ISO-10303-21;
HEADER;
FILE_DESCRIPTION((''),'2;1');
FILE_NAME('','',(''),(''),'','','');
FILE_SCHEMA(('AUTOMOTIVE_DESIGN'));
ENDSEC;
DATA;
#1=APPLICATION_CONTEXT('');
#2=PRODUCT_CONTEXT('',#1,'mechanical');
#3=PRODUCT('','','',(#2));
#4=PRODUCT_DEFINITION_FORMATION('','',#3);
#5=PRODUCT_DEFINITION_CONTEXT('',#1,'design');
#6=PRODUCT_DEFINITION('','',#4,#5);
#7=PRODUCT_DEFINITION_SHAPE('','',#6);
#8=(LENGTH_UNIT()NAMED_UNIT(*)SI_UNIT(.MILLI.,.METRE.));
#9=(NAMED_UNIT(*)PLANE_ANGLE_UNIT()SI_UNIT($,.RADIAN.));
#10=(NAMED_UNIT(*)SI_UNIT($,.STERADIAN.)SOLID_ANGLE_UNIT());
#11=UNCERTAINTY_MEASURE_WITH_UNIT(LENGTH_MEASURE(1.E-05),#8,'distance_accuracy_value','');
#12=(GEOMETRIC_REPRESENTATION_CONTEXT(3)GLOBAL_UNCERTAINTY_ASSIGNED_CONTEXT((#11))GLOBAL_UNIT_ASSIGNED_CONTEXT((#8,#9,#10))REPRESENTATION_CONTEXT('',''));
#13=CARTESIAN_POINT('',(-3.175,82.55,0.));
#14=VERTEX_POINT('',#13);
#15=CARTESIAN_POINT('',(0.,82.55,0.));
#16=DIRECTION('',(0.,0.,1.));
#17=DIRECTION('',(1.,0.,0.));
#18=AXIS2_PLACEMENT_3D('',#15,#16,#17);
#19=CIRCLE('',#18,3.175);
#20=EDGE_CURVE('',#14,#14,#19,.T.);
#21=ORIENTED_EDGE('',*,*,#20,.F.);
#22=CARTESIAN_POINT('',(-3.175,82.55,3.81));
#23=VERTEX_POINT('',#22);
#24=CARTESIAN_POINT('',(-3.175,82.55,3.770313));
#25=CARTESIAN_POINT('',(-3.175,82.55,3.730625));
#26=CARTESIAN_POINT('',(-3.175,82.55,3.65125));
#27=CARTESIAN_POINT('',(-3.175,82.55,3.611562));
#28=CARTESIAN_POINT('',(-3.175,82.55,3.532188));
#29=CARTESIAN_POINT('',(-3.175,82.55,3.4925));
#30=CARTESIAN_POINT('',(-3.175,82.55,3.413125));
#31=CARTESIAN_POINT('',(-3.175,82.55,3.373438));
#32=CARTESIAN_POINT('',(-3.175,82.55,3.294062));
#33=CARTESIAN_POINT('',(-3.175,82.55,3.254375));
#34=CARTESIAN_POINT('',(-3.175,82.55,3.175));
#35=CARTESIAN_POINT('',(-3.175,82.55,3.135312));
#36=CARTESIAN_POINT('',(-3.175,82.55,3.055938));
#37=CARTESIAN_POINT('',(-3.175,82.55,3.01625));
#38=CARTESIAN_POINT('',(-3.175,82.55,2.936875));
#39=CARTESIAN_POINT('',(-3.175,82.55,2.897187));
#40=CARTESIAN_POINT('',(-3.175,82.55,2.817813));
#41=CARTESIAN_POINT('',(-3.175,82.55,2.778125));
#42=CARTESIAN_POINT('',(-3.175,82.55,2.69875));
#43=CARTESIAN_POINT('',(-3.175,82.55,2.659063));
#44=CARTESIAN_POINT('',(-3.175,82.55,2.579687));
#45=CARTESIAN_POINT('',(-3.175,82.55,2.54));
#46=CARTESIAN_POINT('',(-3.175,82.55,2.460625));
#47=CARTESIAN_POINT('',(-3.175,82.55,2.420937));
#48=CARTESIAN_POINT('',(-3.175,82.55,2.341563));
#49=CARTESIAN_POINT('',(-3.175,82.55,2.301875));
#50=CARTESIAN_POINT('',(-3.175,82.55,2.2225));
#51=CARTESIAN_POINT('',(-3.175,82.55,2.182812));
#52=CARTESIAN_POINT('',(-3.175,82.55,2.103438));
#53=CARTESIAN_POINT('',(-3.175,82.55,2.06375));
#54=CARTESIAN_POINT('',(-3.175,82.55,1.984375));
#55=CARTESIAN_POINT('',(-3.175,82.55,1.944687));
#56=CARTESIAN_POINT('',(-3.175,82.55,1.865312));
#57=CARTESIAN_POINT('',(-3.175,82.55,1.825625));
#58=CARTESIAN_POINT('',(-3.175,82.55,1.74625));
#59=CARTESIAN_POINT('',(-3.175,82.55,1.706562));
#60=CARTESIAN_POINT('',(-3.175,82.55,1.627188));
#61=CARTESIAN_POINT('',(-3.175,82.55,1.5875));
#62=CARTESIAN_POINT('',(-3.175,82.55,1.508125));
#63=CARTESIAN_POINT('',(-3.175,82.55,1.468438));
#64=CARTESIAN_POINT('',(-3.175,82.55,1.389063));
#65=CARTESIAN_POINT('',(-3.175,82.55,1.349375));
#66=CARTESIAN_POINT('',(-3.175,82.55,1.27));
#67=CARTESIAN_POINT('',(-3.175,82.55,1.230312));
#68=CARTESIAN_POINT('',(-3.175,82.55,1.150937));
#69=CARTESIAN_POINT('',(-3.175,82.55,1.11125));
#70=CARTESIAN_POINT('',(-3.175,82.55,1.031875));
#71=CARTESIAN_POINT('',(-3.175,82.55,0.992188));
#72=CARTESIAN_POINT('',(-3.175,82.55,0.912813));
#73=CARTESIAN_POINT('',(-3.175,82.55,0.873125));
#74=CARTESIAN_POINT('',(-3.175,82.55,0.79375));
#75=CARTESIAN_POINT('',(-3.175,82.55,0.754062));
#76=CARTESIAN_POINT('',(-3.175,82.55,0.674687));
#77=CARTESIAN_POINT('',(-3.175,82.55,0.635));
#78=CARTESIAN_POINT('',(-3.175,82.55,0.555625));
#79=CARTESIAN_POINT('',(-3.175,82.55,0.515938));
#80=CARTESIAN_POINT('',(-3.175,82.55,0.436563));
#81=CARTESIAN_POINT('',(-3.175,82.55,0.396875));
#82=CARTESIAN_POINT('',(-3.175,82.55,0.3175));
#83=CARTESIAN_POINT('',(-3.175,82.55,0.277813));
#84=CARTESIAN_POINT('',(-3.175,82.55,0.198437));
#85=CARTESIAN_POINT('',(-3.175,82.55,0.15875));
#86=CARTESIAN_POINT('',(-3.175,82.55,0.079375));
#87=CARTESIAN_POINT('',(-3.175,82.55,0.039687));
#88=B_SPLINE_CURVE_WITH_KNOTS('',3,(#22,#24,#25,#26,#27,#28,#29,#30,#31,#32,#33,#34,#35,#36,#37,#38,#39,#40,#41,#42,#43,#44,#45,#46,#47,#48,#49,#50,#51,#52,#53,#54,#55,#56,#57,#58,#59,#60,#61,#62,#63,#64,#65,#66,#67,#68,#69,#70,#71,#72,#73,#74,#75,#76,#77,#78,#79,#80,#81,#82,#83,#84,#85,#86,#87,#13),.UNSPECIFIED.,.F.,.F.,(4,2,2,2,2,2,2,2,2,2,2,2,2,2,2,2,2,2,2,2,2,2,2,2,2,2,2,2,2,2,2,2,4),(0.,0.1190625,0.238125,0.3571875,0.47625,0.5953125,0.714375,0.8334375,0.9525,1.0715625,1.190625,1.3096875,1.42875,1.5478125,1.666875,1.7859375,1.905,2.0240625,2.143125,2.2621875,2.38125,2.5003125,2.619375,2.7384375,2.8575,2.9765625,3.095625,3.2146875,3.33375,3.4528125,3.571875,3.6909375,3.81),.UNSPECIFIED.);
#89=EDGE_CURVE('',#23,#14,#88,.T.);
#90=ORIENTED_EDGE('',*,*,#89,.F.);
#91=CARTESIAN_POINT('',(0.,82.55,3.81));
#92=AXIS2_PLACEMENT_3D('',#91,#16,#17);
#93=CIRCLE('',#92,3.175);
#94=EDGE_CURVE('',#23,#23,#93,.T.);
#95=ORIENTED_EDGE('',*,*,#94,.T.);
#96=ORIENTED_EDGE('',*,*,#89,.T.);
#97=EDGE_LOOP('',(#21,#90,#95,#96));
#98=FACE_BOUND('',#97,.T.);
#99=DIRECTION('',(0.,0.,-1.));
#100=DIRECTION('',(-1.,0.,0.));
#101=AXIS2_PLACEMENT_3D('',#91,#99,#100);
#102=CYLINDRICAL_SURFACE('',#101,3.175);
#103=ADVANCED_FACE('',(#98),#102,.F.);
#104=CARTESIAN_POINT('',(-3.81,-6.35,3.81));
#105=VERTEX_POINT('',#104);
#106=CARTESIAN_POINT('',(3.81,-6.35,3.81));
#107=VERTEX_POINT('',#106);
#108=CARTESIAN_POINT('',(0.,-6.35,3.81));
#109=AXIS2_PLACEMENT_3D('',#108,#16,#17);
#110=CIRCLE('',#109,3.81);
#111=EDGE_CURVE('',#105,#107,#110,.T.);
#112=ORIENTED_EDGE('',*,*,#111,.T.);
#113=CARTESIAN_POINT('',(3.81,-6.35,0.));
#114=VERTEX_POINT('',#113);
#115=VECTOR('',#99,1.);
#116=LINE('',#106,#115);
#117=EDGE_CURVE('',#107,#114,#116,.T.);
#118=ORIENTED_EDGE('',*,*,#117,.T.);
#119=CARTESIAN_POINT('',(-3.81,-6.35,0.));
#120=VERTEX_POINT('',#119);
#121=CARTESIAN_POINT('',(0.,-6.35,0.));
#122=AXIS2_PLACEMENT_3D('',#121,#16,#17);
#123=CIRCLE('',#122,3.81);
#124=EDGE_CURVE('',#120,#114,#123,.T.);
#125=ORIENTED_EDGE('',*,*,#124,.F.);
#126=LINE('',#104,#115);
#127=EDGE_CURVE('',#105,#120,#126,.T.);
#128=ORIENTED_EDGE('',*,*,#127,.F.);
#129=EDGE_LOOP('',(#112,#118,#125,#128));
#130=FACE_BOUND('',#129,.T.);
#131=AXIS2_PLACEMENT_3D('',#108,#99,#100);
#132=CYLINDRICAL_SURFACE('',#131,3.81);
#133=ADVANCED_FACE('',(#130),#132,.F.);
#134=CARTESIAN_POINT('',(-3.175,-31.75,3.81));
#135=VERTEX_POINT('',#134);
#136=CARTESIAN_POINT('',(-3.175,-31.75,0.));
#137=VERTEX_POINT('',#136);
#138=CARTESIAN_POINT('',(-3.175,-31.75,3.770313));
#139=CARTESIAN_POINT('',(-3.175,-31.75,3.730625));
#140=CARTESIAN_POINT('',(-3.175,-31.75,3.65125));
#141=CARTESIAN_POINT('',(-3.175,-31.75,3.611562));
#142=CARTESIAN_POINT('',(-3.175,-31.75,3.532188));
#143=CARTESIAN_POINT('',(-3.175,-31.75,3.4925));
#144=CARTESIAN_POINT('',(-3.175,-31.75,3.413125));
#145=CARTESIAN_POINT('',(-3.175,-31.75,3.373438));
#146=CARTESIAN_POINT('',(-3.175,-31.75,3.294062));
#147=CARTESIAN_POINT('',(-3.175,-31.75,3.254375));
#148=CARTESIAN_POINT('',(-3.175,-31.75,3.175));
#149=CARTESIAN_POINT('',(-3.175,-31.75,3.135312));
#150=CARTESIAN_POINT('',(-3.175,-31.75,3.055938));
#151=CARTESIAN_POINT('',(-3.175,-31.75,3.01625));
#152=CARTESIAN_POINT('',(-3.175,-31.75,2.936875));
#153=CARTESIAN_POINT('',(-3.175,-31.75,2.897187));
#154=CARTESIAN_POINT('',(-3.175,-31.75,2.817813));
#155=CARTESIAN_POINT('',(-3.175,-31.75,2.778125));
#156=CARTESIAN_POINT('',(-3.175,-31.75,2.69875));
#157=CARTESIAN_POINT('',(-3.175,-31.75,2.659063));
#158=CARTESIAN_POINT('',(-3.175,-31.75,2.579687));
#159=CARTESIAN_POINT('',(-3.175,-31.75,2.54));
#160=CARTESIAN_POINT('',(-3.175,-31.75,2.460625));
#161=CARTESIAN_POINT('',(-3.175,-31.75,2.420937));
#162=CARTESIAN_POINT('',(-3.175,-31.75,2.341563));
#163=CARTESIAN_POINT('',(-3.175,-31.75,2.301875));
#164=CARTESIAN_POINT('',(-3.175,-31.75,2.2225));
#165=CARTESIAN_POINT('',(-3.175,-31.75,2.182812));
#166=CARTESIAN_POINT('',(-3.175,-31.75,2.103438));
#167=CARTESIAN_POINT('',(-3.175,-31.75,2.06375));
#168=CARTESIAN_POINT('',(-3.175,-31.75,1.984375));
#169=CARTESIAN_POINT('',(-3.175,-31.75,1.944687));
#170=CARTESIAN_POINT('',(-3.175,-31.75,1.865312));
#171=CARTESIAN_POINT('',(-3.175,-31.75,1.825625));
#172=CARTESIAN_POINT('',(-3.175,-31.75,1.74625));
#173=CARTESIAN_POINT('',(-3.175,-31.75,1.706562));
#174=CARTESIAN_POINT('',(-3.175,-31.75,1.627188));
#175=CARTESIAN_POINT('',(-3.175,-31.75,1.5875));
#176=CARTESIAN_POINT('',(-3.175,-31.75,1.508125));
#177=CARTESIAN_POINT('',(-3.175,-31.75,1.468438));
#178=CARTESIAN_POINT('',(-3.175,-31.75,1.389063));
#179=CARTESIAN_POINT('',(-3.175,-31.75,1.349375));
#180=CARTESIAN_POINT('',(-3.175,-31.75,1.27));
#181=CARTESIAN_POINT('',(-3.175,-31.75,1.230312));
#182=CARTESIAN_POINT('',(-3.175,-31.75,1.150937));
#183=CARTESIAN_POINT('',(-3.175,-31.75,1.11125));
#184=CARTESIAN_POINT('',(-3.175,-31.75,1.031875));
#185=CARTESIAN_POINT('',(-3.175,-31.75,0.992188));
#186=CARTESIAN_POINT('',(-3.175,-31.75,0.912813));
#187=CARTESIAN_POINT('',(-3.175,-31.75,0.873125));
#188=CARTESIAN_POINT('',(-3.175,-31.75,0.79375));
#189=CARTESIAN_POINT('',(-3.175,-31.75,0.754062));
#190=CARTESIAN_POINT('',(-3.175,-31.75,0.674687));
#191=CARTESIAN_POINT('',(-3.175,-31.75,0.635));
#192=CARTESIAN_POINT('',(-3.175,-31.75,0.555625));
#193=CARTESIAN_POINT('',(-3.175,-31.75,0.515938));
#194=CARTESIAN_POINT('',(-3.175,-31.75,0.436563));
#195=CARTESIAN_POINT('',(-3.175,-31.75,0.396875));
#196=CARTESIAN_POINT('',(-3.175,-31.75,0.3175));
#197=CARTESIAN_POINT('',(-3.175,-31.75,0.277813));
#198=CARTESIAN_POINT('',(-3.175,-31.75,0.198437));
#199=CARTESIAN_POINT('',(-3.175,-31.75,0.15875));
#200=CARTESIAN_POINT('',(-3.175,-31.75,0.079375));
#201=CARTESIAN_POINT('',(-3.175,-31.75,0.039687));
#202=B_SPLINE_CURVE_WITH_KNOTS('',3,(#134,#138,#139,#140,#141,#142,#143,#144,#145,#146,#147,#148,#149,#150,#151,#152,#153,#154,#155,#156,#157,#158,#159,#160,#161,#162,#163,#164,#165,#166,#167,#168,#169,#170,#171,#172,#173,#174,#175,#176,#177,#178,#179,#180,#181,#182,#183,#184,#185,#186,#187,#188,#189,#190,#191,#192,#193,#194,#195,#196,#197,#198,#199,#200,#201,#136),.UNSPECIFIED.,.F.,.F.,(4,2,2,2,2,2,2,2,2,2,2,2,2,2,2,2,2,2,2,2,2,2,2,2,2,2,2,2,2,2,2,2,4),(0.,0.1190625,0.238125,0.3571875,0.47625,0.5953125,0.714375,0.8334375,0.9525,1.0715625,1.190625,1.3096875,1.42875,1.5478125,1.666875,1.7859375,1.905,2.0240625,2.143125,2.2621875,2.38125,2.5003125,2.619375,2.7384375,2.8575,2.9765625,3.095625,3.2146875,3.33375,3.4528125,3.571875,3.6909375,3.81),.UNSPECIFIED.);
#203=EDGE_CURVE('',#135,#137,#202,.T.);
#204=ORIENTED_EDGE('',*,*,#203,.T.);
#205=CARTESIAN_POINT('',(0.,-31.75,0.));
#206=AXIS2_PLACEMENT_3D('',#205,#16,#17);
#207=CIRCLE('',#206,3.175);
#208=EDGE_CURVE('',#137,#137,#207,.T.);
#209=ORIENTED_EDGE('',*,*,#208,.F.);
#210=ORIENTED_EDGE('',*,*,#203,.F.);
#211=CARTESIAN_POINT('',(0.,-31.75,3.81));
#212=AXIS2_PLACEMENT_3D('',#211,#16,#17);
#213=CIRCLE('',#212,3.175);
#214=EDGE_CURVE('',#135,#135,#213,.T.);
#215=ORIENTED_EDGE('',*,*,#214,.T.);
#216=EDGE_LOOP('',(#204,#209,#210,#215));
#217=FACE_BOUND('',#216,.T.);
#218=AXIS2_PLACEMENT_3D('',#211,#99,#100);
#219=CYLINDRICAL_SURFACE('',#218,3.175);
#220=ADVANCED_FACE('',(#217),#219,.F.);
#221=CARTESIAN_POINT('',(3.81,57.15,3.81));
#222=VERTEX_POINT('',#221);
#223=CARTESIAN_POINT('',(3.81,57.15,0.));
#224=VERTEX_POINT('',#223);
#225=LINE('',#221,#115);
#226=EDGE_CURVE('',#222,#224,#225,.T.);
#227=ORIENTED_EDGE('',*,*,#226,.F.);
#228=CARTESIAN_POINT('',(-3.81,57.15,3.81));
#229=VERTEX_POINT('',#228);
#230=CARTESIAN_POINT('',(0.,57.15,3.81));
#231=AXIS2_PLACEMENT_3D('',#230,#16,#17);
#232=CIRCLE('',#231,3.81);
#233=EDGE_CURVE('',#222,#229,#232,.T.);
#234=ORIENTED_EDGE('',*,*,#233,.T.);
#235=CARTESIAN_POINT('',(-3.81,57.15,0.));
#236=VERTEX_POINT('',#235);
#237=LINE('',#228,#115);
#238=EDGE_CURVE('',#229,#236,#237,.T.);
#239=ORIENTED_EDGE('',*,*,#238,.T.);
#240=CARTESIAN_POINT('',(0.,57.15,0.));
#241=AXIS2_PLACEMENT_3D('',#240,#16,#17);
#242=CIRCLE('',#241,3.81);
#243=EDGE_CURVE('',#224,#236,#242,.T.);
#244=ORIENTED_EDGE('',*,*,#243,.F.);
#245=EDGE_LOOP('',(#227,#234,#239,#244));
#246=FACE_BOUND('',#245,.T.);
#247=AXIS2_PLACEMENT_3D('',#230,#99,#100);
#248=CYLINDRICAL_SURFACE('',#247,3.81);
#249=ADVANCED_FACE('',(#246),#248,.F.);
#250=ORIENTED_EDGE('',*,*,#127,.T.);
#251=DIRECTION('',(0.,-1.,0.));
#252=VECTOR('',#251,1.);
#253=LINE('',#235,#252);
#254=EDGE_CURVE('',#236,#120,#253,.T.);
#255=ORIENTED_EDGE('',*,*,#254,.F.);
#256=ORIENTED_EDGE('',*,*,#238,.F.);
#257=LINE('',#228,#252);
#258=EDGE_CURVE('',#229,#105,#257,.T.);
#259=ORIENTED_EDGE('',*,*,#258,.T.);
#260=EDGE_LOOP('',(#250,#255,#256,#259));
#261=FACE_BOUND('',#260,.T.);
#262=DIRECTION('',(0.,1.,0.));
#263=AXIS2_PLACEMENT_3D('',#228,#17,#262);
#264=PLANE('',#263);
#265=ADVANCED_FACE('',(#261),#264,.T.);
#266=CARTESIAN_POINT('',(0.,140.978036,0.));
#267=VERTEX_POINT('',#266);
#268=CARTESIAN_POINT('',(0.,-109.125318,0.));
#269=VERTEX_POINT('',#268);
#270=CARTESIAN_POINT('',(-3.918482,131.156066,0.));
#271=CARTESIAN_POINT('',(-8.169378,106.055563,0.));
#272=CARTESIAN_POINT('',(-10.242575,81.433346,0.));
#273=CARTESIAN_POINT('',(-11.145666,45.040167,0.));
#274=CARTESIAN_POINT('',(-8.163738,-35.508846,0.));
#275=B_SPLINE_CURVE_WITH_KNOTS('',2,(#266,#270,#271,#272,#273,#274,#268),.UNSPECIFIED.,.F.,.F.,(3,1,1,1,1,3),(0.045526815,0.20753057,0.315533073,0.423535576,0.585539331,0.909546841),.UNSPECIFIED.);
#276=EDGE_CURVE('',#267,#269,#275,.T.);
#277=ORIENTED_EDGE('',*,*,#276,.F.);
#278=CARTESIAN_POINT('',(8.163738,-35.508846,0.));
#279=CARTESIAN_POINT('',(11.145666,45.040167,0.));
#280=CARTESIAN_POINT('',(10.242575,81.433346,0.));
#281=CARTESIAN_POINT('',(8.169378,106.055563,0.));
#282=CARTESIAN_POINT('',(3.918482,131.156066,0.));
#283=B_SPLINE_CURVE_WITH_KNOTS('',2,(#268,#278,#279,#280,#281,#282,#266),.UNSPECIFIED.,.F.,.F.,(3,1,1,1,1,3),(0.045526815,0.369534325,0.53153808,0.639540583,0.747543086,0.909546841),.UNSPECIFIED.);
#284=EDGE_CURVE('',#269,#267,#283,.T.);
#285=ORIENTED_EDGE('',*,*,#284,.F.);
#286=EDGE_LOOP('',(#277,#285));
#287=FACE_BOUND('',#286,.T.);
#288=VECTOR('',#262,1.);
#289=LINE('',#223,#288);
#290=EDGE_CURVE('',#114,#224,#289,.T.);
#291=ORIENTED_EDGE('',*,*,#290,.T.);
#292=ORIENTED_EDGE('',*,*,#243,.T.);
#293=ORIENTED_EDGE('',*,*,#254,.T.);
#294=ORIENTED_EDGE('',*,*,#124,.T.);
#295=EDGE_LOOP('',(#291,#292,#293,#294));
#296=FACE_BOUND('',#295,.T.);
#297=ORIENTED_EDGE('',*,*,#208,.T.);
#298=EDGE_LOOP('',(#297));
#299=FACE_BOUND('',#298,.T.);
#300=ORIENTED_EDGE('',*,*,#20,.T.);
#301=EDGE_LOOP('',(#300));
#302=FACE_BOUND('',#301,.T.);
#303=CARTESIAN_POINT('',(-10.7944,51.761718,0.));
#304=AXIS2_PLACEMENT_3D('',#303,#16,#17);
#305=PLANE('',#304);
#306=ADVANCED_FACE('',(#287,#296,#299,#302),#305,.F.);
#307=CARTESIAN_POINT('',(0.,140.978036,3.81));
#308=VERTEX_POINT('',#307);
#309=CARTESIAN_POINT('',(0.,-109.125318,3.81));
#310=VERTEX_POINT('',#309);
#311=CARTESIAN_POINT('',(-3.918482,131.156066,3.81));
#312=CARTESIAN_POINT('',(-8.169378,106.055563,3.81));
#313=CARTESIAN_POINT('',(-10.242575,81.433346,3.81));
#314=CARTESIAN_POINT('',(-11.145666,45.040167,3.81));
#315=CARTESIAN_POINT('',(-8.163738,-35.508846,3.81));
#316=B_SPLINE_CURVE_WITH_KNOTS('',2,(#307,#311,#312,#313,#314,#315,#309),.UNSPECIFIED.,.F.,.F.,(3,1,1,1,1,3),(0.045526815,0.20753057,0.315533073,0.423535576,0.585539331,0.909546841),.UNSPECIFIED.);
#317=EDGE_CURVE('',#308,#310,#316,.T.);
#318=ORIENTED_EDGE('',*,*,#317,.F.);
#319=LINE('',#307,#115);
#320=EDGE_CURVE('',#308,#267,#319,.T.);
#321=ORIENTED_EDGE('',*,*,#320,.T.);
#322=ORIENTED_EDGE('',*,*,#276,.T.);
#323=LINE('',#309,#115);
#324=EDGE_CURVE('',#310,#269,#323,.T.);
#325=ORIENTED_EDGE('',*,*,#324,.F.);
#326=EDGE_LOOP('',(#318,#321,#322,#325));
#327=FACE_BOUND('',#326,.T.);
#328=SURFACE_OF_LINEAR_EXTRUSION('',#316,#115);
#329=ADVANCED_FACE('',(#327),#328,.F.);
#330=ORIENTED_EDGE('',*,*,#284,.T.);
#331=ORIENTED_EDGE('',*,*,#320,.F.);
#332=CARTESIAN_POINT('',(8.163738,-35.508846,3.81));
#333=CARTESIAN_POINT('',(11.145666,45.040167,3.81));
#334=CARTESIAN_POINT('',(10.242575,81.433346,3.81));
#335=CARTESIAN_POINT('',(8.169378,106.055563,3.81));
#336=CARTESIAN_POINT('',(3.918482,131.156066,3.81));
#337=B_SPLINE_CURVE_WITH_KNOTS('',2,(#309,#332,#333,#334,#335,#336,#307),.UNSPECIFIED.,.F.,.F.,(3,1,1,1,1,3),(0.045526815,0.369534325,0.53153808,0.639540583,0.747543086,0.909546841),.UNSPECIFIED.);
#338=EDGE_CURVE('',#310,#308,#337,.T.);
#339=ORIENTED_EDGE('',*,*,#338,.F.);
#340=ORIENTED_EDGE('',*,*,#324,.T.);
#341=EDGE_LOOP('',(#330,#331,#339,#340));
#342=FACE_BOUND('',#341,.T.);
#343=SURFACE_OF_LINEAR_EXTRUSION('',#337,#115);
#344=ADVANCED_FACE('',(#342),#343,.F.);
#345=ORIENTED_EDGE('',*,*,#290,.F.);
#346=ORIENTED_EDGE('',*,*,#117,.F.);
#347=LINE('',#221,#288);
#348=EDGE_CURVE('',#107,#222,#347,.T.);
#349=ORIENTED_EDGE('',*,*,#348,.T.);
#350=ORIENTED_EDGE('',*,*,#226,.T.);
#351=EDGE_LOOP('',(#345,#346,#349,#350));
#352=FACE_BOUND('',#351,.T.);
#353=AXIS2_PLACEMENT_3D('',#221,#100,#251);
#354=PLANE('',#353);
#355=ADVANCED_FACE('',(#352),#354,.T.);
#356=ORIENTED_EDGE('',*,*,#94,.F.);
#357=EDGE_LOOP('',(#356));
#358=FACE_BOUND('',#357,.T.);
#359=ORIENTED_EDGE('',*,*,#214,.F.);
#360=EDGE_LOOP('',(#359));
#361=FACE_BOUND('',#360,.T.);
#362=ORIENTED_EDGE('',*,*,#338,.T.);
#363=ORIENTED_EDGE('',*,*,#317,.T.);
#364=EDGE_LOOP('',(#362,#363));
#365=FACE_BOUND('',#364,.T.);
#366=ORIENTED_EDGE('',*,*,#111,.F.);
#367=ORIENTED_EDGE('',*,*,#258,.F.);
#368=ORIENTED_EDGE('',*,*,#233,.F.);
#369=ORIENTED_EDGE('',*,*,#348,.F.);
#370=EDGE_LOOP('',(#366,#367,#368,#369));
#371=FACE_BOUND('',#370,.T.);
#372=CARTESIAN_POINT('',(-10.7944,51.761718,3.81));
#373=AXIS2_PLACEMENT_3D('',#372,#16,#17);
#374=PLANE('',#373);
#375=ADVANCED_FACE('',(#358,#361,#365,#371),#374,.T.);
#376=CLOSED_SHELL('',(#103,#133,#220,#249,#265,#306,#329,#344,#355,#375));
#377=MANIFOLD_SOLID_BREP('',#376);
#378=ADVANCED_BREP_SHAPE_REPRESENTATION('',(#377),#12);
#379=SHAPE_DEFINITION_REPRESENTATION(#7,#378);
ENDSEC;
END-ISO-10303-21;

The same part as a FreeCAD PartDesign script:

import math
import FreeCAD as App
import Part
import Sketcher
from FreeCAD import Vector
Q = App.Units.Quantity

doc = App.newDocument("Part")
body = doc.addObject("PartDesign::Body", "Body")

# Sketch on XY plane
sketch1 = body.newObject("Sketcher::SketchObject", "Sketch")
sketch1.AttachmentSupport = (doc.getObject("XY_Plane"), [""])
sketch1.MapMode = "FlatFace"
sketch1.addGeometry([
    Part.BSplineCurve([Vector(0, 140.978036, 0), Vector(3.918482, 131.156066, 0), Vector(8.169378, 106.055563, 0), Vector(10.242575, 81.433346, 0), Vector(11.145666, 45.040167, 0), Vector(8.163738, -35.508846, 0), Vector(0, -109.125318, 0)], [3, 1, 1, 1, 1, 3], [0.045526815, 0.20753057, 0.315533073, 0.423535576, 0.585539331, 0.909546841], False, 2, [1, 1, 1, 1, 1, 1, 1], False),  # 0
    Part.BSplineCurve([Vector(0, -109.125318, 0), Vector(-8.163738, -35.508846, 0), Vector(-11.145666, 45.040167, 0), Vector(-10.242575, 81.433346, 0), Vector(-8.169378, 106.055563, 0), Vector(-3.918482, 131.156066, 0), Vector(0, 140.978036, 0)], [3, 1, 1, 1, 1, 3], [0.045526815, 0.369534325, 0.53153808, 0.639540583, 0.747543086, 0.909546841], False, 2, [1, 1, 1, 1, 1, 1, 1], False),  # 1
    Part.Circle(Vector(0, -31.75, 0), Vector(0, 0, 1), 3.175),  # 2
    Part.LineSegment(Vector(3.81, 57.15, 0), Vector(3.81, -6.35, 0)),  # 3
    Part.ArcOfCircle(Part.Circle(Vector(0, -6.35, 0), Vector(0, 0, 1), 3.81), math.radians(180), math.radians(360)),  # 4
    Part.LineSegment(Vector(-3.81, -6.35, 0), Vector(-3.81, 57.15, 0)),  # 5
    Part.ArcOfCircle(Part.Circle(Vector(0, 57.15, 0), Vector(0, 0, 1), 3.81), math.radians(0), math.radians(180)),  # 6
    Part.Circle(Vector(0, 82.55, 0), Vector(0, 0, 1), 3.175),  # 7
], False)
sketch1.addConstraint([
    Sketcher.Constraint("Block", 0),
    Sketcher.Constraint("Block", 1),
    Sketcher.Constraint("Tangent", 3, 2, 4, 2),
    Sketcher.Constraint("Tangent", 4, 1, 5, 1),
    Sketcher.Constraint("Tangent", 5, 2, 6, 2),
    Sketcher.Constraint("Tangent", 6, 1, 3, 1),
    Sketcher.Constraint("Vertical", 3),
    Sketcher.Constraint("Vertical", 5),
    Sketcher.Constraint("Equal", 2, 7),
    Sketcher.Constraint("PointOnObject", 2, 3, -2),
    Sketcher.Constraint("PointOnObject", 4, 3, -2),
    Sketcher.Constraint("PointOnObject", 7, 3, -2),
    Sketcher.Constraint("Diameter", 2, Q("0.25 in")),
    Sketcher.Constraint("Radius", 4, Q("0.15 in")),
    Sketcher.Constraint("DistanceY", 3, 2, 3, 1, Q("2.5 in")),
    Sketcher.Constraint("DistanceY", 2, 3, 4, 3, Q("1 in")),
    Sketcher.Constraint("DistanceY", 6, 3, 7, 3, Q("1 in")),
    Sketcher.Constraint("DistanceY", 2, 3, -1, 1, Q("1.25 in")),
])
pad1 = body.newObject("PartDesign::Pad", "Pad")
pad1.Profile = sketch1
pad1.Length = Q("0.15 in")

doc.recompute()
